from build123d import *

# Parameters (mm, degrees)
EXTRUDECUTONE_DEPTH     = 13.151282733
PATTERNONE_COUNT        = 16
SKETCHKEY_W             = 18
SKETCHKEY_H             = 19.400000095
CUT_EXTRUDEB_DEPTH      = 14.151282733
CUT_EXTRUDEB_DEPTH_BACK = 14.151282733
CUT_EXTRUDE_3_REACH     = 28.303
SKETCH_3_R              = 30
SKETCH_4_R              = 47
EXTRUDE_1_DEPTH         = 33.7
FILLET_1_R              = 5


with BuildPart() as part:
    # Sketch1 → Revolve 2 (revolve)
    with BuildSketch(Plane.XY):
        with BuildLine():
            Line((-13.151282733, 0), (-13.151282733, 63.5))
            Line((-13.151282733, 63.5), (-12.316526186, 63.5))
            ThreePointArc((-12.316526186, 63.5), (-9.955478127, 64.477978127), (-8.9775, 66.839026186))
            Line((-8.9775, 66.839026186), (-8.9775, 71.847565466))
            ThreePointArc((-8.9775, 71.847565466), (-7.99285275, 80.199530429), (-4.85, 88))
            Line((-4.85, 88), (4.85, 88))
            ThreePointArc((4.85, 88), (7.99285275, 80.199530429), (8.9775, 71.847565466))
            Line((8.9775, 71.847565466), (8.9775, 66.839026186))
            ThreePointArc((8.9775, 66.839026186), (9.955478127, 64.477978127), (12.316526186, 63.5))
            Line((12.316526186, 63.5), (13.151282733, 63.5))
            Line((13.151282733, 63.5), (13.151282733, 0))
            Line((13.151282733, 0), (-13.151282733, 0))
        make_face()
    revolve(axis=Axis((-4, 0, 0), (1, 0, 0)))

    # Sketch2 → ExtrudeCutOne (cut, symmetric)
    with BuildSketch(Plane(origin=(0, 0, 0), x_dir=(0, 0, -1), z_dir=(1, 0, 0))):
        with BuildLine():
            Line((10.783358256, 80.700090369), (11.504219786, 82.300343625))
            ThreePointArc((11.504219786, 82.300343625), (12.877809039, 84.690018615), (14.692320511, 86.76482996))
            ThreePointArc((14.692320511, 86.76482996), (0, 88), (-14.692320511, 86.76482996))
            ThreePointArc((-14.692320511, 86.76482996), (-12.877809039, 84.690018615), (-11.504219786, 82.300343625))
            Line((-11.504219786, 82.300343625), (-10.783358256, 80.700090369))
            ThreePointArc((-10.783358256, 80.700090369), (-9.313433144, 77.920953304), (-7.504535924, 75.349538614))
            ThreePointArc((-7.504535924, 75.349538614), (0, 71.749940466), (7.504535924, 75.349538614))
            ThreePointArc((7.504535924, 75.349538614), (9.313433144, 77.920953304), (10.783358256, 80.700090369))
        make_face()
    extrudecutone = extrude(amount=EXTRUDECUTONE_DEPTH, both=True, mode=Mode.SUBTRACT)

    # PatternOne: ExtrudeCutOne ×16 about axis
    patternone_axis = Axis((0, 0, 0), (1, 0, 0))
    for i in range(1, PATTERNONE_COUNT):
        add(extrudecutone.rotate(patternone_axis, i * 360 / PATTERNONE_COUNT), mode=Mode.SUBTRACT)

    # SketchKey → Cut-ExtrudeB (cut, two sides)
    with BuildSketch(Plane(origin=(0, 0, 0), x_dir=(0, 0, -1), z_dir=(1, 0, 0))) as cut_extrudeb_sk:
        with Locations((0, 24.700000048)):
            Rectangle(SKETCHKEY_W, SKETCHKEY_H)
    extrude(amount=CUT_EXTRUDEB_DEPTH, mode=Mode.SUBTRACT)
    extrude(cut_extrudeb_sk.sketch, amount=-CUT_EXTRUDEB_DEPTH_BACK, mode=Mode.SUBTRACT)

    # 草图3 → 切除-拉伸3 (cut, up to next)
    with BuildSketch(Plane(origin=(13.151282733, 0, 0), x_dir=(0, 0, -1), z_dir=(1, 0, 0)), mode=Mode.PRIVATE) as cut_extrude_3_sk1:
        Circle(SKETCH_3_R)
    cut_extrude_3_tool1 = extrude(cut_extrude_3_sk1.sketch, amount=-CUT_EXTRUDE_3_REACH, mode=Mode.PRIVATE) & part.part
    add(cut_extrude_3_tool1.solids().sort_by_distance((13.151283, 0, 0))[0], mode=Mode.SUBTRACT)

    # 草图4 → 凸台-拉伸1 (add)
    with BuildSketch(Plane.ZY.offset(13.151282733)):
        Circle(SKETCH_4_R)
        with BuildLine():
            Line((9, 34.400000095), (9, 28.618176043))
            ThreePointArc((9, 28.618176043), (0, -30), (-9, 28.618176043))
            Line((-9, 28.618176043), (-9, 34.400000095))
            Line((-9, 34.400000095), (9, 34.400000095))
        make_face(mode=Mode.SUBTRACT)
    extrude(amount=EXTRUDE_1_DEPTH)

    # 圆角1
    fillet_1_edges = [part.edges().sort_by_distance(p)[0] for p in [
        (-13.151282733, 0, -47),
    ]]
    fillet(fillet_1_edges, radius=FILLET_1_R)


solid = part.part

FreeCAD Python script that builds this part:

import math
import FreeCAD as App
import Part
import Sketcher

V = App.Vector
Q = App.Units.Quantity


def edges_at(feature, points):
    """Names of the edges that pass closest to the given points."""
    edges = feature.Shape.Edges
    near = lambda p: min(range(len(edges)), key=lambda i: edges[i].distToShape(Part.Vertex(*p))[0])
    return sorted({f"Edge{near(p) + 1}" for p in points})


def add_polygon(sketch, points):
    """Adds a closed chain of lines whose ends are joined by coincident constraints."""
    first, n = sketch.GeometryCount, len(points)
    for a, b in zip(points, points[1:] + points[:1]):
        sketch.addGeometry(Part.LineSegment(App.Vector(*a, 0), App.Vector(*b, 0)), False)
    for i in range(n):
        sketch.addConstraint(Sketcher.Constraint("Coincident", first + i, 2, first + (i + 1) % n, 1))

doc = App.newDocument("Part")
body = doc.addObject("PartDesign::Body", "Body")

# Sketch on XY plane
sketch1 = body.newObject("Sketcher::SketchObject", "Sketch")
sketch1.AttachmentSupport = (doc.getObject("XY_Plane"), [""])
sketch1.MapMode = "FlatFace"
sketch1.addGeometry([
    Part.LineSegment(V(-13.2, 63.5, 0), V(-13.2, 0, 0)),  # 0
    Part.LineSegment(V(-13.2, 0, 0), V(13.2, 0, 0)),  # 1
    Part.LineSegment(V(13.2, 0, 0), V(13.2, 63.5, 0)),  # 2
    Part.LineSegment(V(13.2, 63.5, 0), V(12.3, 63.5, 0)),  # 3
    Part.ArcOfCircle(Part.Circle(V(12.3, 66.8, 0), V(0, 0, 1), 3.3), math.radians(180), math.radians(270)),  # 4
    Part.LineSegment(V(9, 66.8, 0), V(9, 71.8, 0)),  # 5
    Part.ArcOfCircle(Part.Circle(V(-22.8, 72.3, 0), V(0, 0, 1), 31.8), math.radians(-1), math.radians(30)),  # 6
    Part.LineSegment(V(4.8, 88, 0), V(-4.8, 88, 0)),  # 7
    Part.ArcOfCircle(Part.Circle(V(22.8, 72.3, 0), V(0, 0, 1), 31.8), math.radians(150), math.radians(181)),  # 8
    Part.LineSegment(V(-9, 71.8, 0), V(-9, 66.8, 0)),  # 9
    Part.ArcOfCircle(Part.Circle(V(-12.3, 66.8, 0), V(0, 0, 1), 3.3), math.radians(-90), math.radians(0)),  # 10
    Part.LineSegment(V(-12.3, 63.5, 0), V(-13.2, 63.5, 0)),  # 11
], False)
sketch1.addConstraint([
    Sketcher.Constraint("Coincident", 0, 2, 1, 1),
    Sketcher.Constraint("Coincident", 1, 2, 2, 1),
    Sketcher.Constraint("Coincident", 2, 2, 3, 1),
    Sketcher.Constraint("Tangent", 3, 2, 4, 2),
    Sketcher.Constraint("Tangent", 4, 1, 5, 1),
    Sketcher.Constraint("Coincident", 5, 2, 6, 1),
    Sketcher.Constraint("Coincident", 6, 2, 7, 1),
    Sketcher.Constraint("Coincident", 7, 2, 8, 1),
    Sketcher.Constraint("Coincident", 8, 2, 9, 1),
    Sketcher.Constraint("Tangent", 9, 2, 10, 2),
    Sketcher.Constraint("Tangent", 10, 1, 11, 1),
    Sketcher.Constraint("Coincident", 11, 2, 0, 1),
    Sketcher.Constraint("Vertical", 0),
    Sketcher.Constraint("Horizontal", 1),
    Sketcher.Constraint("Vertical", 2),
    Sketcher.Constraint("Horizontal", 3),
    Sketcher.Constraint("Vertical", 5),
    Sketcher.Constraint("Horizontal", 7),
    Sketcher.Constraint("Vertical", 9),
    Sketcher.Constraint("Horizontal", 11),
    Sketcher.Constraint("Equal", 6, 8),
    Sketcher.Constraint("Equal", 4, 10),
    Sketcher.Constraint("Symmetric", 0, 2, 1, 2, -1, 1),
    Sketcher.Constraint("Symmetric", 6, 3, 8, 3, -2),
    Sketcher.Constraint("Symmetric", 4, 3, 10, 3, -2),
    Sketcher.Constraint("Radius", 6, 31.75),
    Sketcher.Constraint("DistanceX", 7, 2, 7, 1, 9.7),
    Sketcher.Constraint("DistanceY", 0, 2, 0, 1, 63.5),
    Sketcher.Constraint("DistanceY", -1, 1, 6, 2, 88.0),
    Sketcher.Constraint("Radius", 4, 3.339026),
    Sketcher.Constraint("DistanceX", 8, 2, 5, 2, 17.955),
    Sketcher.Constraint("DistanceY", 5, 1, 5, 2, 5.008539),
    Sketcher.Constraint("DistanceX", 1, 1, 1, 2, 26.302565),
])
revolution = body.newObject("PartDesign::Revolution", "Revolution")
revolution.Profile = sketch1
revolution.ReferenceAxis = (sketch1, ["H_Axis"])
revolution.Angle = 360

# Sketch on YZ plane
sketch2 = body.newObject("Sketcher::SketchObject", "Sketch001")
sketch2.AttachmentSupport = (doc.getObject("YZ_Plane"), [""])
sketch2.MapMode = "FlatFace"
sketch2.addGeometry([
    Part.LineSegment(V(80.7, -10.8, 0), V(82.3, -11.5, 0)),  # 0
    Part.ArcOfCircle(Part.Circle(V(76.5, -24.3, 0), V(0, 0, 1), 14), math.radians(43), math.radians(66)),  # 1
    Part.ArcOfCircle(Part.Circle(V(0, 0, 0), V(0, 0, 1), 88), math.radians(-9.61), math.radians(9.61)),  # 2
    Part.ArcOfCircle(Part.Circle(V(76.5, 24.3, 0), V(0, 0, 1), 14), math.radians(-66), math.radians(-43)),  # 3
    Part.LineSegment(V(82.3, 11.5, 0), V(80.7, 10.8, 0)),  # 4
    Part.ArcOfCircle(Part.Circle(V(90.9, -11.9, 0), V(0, 0, 1), 24.9), math.radians(114.25), math.radians(128.75)),  # 5
    Part.ArcOfCircle(Part.Circle(V(81.4, 0, 0), V(0, 0, 1), 9.6), math.radians(129), math.radians(231)),  # 6
    Part.ArcOfCircle(Part.Circle(V(90.9, 11.9, 0), V(0, 0, 1), 24.9), math.radians(-128.75), math.radians(-114.25)),  # 7
], False)
sketch2.addConstraint([
    Sketcher.Constraint("Tangent", 0, 2, 1, 2),
    Sketcher.Constraint("Coincident", 1, 1, 2, 1),
    Sketcher.Constraint("Coincident", 2, 2, 3, 2),
    Sketcher.Constraint("Tangent", 3, 1, 4, 1),
    Sketcher.Constraint("Tangent", 4, 2, 5, 1),
    Sketcher.Constraint("Tangent", 5, 2, 6, 1),
    Sketcher.Constraint("Tangent", 6, 2, 7, 1),
    Sketcher.Constraint("Tangent", 7, 2, 0, 1),
    Sketcher.Constraint("Coincident", 2, 3, -1, 1),
    Sketcher.Constraint("Equal", 1, 3),
    Sketcher.Constraint("Equal", 5, 7),
    Sketcher.Constraint("Symmetric", 1, 3, 3, 3, -1),
    Sketcher.Constraint("Symmetric", 5, 3, 7, 3, -1),
    Sketcher.Constraint("Radius", 2, 88.0),
    Sketcher.Constraint("Angle", 0, Q("-24.25 deg")),
    Sketcher.Constraint("Radius", 1, 14.02222),
    Sketcher.Constraint("Radius", 5, 24.862625),
    Sketcher.Constraint("Radius", 6, 9.622625),
    Sketcher.Constraint("DistanceY", 1, 1, 0, 2, 3.188101),
    Sketcher.Constraint("DistanceX", 5, 2, 7, 3, 15.562101),
    Sketcher.Constraint("Distance", 0, 1.755122),
])
pocket1 = body.newObject("PartDesign::Pocket", "Pocket")
pocket1.Profile = sketch2
pocket1.Length = 26.302565
pocket1.Midplane = True
doc.recompute()

polarpattern = body.newObject("PartDesign::PolarPattern", "PolarPattern")
polarpattern.Originals = [pocket1]
polarpattern.Axis = (doc.getObject("X_Axis"), [""])
polarpattern.Angle = 360
polarpattern.Occurrences = 16
body.Tip = polarpattern

# Sketch on YZ plane
sketch3 = body.newObject("Sketcher::SketchObject", "Sketch002")
sketch3.AttachmentSupport = (doc.getObject("YZ_Plane"), [""])
sketch3.MapMode = "FlatFace"
add_polygon(sketch3, [(34, 9), (15, 9), (15, -9), (34, -9)])  # lines 0-3
sketch3.addConstraint([
    Sketcher.Constraint("Horizontal", 0),
    Sketcher.Constraint("Vertical", 1),
    Sketcher.Constraint("Horizontal", 2),
    Sketcher.Constraint("Vertical", 3),
    Sketcher.Constraint("DistanceY", 1, 2, 1, 1, 18.0),
    Sketcher.Constraint("DistanceX", 0, 2, 0, 1, 19.4),
    Sketcher.Constraint("DistanceX", -1, 1, 0, 2, 15.0),
    Sketcher.Constraint("DistanceY", -1, 1, 0, 2, 9.0),
])
pocket2 = body.newObject("PartDesign::Pocket", "Pocket001")
pocket2.Profile = sketch3
pocket2.Type = "ThroughAll"
pocket2.Midplane = True

# Sketch on YZ plane
sketch4 = body.newObject("Sketcher::SketchObject", "Sketch003")
sketch4.AttachmentSupport = (doc.getObject("YZ_Plane"), [""])
sketch4.MapMode = "FlatFace"
sketch4.AttachmentOffset = App.Placement(V(0, 0, 13.151283), App.Rotation())
sketch4.addGeometry(Part.Circle(V(0, 0, 0), V(0, 0, 1), 30), False)
sketch4.addConstraint([
    Sketcher.Constraint("Coincident", 0, 3, -1, 1),
    Sketcher.Constraint("Diameter", 0, 60.0),
])
pocket3 = body.newObject("PartDesign::Pocket", "Pocket002")
pocket3.Profile = sketch4
pocket3.Type = "UpToFirst"

# Sketch on YZ plane
sketch5 = body.newObject("Sketcher::SketchObject", "Sketch004")
sketch5.AttachmentSupport = (doc.getObject("YZ_Plane"), [""])
sketch5.MapMode = "FlatFace"
sketch5.AttachmentOffset = App.Placement(V(0, 0, -13.151283), App.Rotation())
sketch5.addGeometry([
    Part.Circle(V(0, 0, 0), V(0, 0, 1), 47),  # 0
    Part.LineSegment(V(34, -9, 0), V(34, 9, 0)),  # 1
    Part.LineSegment(V(34, 9, 0), V(29, 9, 0)),  # 2
    Part.ArcOfCircle(Part.Circle(V(0, 0, 0), V(0, 0, 1), 30), math.radians(17), math.radians(343)),  # 3
    Part.LineSegment(V(29, -9, 0), V(34, -9, 0)),  # 4
], False)
sketch5.addConstraint([
    Sketcher.Constraint("Coincident", 1, 2, 2, 1),
    Sketcher.Constraint("Coincident", 2, 2, 3, 1),
    Sketcher.Constraint("Coincident", 3, 2, 4, 1),
    Sketcher.Constraint("Coincident", 4, 2, 1, 1),
    Sketcher.Constraint("Vertical", 1),
    Sketcher.Constraint("Horizontal", 2),
    Sketcher.Constraint("Horizontal", 4),
    Sketcher.Constraint("Coincident", 0, 3, -1, 1),
    Sketcher.Constraint("Coincident", 3, 3, -1, 1),
    Sketcher.Constraint("Vertical", 2, 2, 3, 2),
    Sketcher.Constraint("Diameter", 0, 94.0),
    Sketcher.Constraint("Radius", 3, 30.0),
    Sketcher.Constraint("DistanceY", 1, 1, 1, 2, 18.0),
    Sketcher.Constraint("DistanceX", -1, 1, 1, 2, 34.4),
])
pad1 = body.newObject("PartDesign::Pad", "Pad")
pad1.Profile = sketch5
pad1.Length = 33.7
pad1.Reversed = True
doc.recompute()

fillet = body.newObject("PartDesign::Fillet", "Fillet")
fillet.Base = (pad1, edges_at(pad1, [(-13.151, 0, -47)]))
fillet.Radius = 5

doc.recompute()
